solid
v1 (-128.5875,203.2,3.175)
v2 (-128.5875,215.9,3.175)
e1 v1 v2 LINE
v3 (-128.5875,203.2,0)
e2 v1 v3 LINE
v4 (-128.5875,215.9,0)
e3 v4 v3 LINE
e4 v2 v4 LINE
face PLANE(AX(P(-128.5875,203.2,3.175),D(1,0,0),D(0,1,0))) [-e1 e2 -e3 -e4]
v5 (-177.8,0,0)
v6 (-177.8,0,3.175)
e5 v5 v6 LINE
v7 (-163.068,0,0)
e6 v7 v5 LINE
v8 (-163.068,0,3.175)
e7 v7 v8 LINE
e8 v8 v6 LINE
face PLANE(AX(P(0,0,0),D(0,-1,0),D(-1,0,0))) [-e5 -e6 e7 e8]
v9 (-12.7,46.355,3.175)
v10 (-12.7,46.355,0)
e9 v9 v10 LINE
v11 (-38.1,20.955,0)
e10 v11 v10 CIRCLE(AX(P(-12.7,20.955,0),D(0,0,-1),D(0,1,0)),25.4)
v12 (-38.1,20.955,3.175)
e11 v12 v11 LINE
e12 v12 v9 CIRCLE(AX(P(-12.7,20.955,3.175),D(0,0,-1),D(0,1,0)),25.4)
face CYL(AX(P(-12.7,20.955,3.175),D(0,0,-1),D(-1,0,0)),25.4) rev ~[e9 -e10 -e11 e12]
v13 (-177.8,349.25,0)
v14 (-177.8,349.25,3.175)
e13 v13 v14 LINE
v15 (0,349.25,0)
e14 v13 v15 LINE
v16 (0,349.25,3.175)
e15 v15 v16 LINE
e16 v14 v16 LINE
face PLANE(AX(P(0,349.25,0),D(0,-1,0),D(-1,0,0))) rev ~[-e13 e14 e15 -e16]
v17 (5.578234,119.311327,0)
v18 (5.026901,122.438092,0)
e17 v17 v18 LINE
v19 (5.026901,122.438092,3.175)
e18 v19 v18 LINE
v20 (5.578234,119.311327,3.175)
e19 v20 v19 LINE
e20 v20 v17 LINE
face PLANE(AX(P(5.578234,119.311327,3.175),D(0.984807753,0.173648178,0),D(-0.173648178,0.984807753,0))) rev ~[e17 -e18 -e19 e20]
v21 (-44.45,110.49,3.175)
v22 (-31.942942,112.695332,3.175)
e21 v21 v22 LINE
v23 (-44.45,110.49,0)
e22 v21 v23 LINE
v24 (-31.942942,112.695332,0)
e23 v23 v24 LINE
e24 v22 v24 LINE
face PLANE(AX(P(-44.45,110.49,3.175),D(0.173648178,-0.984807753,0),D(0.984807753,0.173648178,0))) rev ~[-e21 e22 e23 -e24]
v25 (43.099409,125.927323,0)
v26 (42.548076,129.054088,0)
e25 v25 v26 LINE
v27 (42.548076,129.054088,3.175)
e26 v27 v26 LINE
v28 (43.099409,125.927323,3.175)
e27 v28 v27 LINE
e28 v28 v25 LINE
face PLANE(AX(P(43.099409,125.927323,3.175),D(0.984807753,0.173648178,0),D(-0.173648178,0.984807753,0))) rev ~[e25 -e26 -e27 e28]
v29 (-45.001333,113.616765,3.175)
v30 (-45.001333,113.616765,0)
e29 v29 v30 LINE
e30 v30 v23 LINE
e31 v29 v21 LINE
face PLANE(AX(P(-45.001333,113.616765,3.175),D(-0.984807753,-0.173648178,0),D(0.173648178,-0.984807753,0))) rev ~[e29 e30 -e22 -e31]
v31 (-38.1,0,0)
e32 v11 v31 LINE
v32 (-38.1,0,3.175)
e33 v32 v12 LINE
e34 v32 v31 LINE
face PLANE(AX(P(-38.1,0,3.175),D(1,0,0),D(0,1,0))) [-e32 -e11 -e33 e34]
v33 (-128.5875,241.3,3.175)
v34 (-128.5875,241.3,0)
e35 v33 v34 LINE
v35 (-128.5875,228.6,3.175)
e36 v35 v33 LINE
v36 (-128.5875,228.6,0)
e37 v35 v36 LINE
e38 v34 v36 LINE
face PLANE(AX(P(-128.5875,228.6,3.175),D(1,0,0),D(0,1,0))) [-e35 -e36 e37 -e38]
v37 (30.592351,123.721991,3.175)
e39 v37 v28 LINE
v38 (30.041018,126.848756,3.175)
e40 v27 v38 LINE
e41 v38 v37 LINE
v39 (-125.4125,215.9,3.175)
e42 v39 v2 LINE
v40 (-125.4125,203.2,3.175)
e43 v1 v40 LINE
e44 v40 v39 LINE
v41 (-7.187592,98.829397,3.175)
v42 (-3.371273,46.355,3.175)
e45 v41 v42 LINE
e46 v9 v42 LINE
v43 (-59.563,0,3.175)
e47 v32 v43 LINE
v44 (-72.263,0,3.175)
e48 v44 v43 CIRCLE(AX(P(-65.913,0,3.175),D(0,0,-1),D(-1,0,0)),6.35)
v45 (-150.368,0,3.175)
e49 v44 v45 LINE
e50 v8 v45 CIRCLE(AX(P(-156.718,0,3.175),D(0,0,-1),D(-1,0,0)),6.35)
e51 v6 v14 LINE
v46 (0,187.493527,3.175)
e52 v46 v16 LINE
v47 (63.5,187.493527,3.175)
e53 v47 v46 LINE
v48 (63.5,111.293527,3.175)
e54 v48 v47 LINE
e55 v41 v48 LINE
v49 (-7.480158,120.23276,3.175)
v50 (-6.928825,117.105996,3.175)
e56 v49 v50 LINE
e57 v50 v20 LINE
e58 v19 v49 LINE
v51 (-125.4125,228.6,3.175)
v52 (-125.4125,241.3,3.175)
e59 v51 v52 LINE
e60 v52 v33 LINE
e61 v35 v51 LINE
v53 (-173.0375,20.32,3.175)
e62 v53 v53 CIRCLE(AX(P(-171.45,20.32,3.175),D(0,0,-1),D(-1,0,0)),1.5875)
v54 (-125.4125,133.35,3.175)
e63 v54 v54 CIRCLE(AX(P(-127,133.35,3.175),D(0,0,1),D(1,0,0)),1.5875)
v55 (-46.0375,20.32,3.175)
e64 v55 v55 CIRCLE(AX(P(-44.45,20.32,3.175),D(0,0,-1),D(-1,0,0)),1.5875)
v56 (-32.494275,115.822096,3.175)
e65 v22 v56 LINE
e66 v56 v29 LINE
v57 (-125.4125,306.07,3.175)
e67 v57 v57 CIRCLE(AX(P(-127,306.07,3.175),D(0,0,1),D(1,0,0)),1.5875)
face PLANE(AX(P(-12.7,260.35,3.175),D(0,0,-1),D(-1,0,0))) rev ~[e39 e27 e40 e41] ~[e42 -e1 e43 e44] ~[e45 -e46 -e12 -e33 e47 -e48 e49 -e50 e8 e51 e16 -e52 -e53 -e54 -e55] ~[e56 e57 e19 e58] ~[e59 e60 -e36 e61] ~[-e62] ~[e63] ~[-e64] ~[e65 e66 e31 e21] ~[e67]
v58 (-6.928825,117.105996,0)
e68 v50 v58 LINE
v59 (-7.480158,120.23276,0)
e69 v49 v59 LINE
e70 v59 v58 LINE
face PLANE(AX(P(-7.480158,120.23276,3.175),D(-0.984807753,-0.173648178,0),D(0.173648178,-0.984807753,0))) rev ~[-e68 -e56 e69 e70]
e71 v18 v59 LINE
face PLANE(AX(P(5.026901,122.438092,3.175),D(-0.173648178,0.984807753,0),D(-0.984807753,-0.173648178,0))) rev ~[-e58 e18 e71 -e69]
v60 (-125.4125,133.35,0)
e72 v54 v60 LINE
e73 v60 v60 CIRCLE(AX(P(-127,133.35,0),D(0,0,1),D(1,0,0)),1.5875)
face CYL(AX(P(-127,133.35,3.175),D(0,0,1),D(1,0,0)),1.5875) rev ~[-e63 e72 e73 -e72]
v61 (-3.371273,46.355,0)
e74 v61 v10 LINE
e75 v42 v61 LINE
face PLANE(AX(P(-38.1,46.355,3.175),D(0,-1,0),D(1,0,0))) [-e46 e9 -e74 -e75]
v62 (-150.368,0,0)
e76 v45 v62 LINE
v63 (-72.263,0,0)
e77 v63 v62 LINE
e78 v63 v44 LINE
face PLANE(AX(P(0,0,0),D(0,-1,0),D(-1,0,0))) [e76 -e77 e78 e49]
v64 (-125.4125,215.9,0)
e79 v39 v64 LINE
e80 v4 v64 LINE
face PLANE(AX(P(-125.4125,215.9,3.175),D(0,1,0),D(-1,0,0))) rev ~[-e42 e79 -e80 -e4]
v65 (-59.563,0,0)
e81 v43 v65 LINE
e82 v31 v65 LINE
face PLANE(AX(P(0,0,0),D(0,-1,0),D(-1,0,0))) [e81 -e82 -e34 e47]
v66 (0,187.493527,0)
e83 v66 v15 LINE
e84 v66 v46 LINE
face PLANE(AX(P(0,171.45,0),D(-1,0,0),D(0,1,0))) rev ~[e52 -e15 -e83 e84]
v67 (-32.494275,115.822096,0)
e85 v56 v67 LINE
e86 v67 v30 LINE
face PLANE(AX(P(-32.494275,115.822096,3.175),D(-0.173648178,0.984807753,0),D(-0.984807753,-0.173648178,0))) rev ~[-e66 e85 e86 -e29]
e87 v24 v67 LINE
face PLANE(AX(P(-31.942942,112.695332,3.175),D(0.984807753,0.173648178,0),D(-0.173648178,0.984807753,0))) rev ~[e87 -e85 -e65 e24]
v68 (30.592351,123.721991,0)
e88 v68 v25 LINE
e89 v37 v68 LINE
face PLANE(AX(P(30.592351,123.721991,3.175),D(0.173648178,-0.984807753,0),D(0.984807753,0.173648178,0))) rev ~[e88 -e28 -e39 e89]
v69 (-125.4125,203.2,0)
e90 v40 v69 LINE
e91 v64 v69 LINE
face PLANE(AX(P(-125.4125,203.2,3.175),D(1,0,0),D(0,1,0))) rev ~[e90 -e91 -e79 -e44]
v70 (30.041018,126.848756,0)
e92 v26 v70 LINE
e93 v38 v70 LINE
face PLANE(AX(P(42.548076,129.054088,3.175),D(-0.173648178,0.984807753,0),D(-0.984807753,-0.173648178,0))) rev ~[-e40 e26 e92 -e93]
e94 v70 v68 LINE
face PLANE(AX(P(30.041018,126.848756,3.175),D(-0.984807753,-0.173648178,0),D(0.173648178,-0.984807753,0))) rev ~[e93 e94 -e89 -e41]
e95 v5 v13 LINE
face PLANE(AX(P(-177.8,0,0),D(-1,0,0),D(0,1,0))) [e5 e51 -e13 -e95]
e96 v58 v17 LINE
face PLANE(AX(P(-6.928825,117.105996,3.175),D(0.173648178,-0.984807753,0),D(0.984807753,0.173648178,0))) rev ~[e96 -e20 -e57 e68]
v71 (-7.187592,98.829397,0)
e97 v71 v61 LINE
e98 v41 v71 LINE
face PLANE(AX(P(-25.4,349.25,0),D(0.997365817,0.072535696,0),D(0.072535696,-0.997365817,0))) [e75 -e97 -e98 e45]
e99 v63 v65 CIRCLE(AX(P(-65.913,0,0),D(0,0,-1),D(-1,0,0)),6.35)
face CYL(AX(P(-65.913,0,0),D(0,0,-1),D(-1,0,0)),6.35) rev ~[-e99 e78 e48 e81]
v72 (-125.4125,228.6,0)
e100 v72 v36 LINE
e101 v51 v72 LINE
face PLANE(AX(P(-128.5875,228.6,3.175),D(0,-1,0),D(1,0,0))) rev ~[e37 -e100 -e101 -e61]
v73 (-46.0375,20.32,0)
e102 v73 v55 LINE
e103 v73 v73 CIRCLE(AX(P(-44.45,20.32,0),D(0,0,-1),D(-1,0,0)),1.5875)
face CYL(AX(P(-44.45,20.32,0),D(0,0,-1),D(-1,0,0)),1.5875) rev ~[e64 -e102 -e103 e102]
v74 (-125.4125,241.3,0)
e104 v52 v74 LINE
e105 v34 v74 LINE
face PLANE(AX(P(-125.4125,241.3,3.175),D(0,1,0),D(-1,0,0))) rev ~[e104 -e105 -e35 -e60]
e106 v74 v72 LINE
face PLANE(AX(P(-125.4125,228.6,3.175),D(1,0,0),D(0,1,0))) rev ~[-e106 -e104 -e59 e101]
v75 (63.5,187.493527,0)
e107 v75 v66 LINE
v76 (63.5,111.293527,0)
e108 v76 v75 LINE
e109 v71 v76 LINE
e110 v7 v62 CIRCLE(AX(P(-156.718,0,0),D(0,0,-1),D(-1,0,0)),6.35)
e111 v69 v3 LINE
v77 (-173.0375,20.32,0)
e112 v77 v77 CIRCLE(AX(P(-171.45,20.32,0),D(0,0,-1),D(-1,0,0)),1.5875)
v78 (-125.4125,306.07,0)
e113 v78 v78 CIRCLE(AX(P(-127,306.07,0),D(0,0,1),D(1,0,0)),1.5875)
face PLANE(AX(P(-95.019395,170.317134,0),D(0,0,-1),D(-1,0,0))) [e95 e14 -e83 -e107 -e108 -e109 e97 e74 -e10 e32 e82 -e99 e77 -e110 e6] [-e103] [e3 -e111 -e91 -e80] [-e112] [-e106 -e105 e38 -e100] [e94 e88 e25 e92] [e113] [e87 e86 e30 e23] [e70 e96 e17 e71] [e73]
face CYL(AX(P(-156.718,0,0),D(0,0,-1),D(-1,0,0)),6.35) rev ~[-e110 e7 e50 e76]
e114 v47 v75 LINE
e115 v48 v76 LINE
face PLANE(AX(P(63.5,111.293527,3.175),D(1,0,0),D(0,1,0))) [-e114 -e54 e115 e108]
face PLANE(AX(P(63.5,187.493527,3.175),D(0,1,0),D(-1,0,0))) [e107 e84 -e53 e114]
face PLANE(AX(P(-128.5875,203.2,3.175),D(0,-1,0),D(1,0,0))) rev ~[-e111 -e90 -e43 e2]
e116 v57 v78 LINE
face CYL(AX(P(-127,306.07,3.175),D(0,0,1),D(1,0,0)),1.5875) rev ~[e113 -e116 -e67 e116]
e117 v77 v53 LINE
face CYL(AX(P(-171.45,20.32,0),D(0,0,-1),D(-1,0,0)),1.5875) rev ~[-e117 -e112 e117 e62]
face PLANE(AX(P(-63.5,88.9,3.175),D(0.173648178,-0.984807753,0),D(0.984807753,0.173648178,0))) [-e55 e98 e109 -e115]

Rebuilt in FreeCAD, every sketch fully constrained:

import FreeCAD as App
import Part
import Sketcher
from FreeCAD import Vector
Q = App.Units.Quantity


def edges_at(feature, points):
    """Names of the edges that pass closest to the given points."""
    edges = feature.Shape.Edges
    near = lambda p: min(range(len(edges)), key=lambda i: edges[i].distToShape(Part.Vertex(*p))[0])
    return sorted({f"Edge{near(p) + 1}" for p in points})


def add_polygon(sketch, points):
    """Adds a closed chain of lines whose ends are joined by coincident constraints."""
    first, n = sketch.GeometryCount, len(points)
    for a, b in zip(points, points[1:] + points[:1]):
        sketch.addGeometry(Part.LineSegment(App.Vector(*a, 0), App.Vector(*b, 0)), False)
    for i in range(n):
        sketch.addConstraint(Sketcher.Constraint("Coincident", first + i, 2, first + (i + 1) % n, 1))

doc = App.newDocument("Part")
params = doc.addObject("Spreadsheet::Sheet", "Params")
for row, (alias, value) in enumerate([
    ("sketch1_width", "7 in"),
    ("sketch1_width2", "6 in"),
    ("sketch1_height", "13.75 in"),
    ("pad1_length", "0.125 in"),
    ("sketch2_diameter", "0.125 in"),
    ("pocket1_length", "0.125 in"),
    ("sketch3_width", "5 in"),
    ("sketch3_height", "3 in"),
    ("pad2_length", "0.125 in"),
    ("sketch4_length", "0.5 in"),
    ("sketch4_length2", "0.125 in"),
    ("pocket2_length", "0.125 in"),
    ("sketch5_height", "0.5 in"),
    ("sketch5_width", "0.125 in"),
    ("pocket3_length", "0.4 in"),
    ("linearpattern_pitch", "1 in"),
    ("sketch6_width", "1.5 in"),
    ("sketch6_height", "1.825 in"),
    ("pocket4_length", "0.5 in"),
    ("sketch7_diameter", "0.125 in"),
    ("pocket5_length", "0.3 in"),
    ("sketch8_diameter", "0.5 in"),
    ("pocket6_length", "0.5 in"),
    ("fillet_radius", "1 in"),
    ("sketch9_width", "1 in"),
    ("sketch9_height", "7 in"),
    ("pad3_length", "0.125 in"),
    ("linearpattern2_pitch", "3 in"),
], start=1):
    params.set(f"A{row}", alias)
    params.set(f"B{row}", "=" + value)
    params.setAlias(f"B{row}", alias)

body = doc.addObject("PartDesign::Body", "Body")

sketch1 = body.newObject("Sketcher::SketchObject", "Sketch")
sketch1.AttachmentSupport = (doc.getObject("XY_Plane"), [""])
sketch1.MapMode = "FlatFace"
add_polygon(sketch1, [(-178, 0), (0, 0), (-25, 349), (-178, 349)])
sketch1.addConstraint([
    Sketcher.Constraint("Horizontal", 0),
    Sketcher.Constraint("Horizontal", 2),
    Sketcher.Constraint("Vertical", 3),
    Sketcher.Constraint("Coincident", 0, 2, -1, 1),
    Sketcher.Constraint("DistanceX", 0, 1, 0, 2, Q("7 in")),
    Sketcher.Constraint("DistanceX", 2, 2, 2, 1, Q("6 in")),
    Sketcher.Constraint("DistanceY", 3, 2, 3, 1, Q("13.75 in")),
])
sketch1.setExpression("Constraints[8]", "Params.sketch1_width")
sketch1.setExpression("Constraints[9]", "Params.sketch1_width2")
sketch1.setExpression("Constraints[10]", "Params.sketch1_height")
pad1 = body.newObject("PartDesign::Pad", "Pad")
pad1.Profile = sketch1
pad1.setExpression("Length", "Params.pad1_length")

sketch2 = body.newObject("Sketcher::SketchObject", "Sketch001")
sketch2.AttachmentSupport = (doc.getObject("XY_Plane"), [""])
sketch2.MapMode = "FlatFace"
sketch2.AttachmentOffset = App.Placement(Vector(0, 0, 0.125 * 25.4), App.Rotation())
sketch2.addGeometry([
    Part.Circle(Vector(-127, 133.3, 0), Vector(0, 0, 1), 1.6),
    Part.Circle(Vector(-127, 306.1, 0), Vector(0, 0, 1), 1.6),
], False)
sketch2.addConstraint([
    Sketcher.Constraint("Equal", 0, 1),
    Sketcher.Constraint("Vertical", 0, 3, 1, 3),
    Sketcher.Constraint("Diameter", 0, Q("0.125 in")),
    Sketcher.Constraint("DistanceX", 0, 3, -1, 1, Q("5 in")),
    Sketcher.Constraint("DistanceY", 0, 3, 1, 3, Q("6.8 in")),
    Sketcher.Constraint("DistanceY", -1, 1, 0, 3, Q("5.25 in")),
])
sketch2.setExpression("Constraints[2]", "Params.sketch2_diameter")
pocket1 = body.newObject("PartDesign::Pocket", "Pocket")
pocket1.Profile = sketch2
pocket1.setExpression("Length", "Params.pocket1_length")

sketch3 = body.newObject("Sketcher::SketchObject", "Sketch002")
sketch3.AttachmentSupport = (doc.getObject("XY_Plane"), [""])
sketch3.MapMode = "FlatFace"
sketch3.AttachmentOffset = App.Placement(Vector(0, 0, 0.125 * 25.4), App.Rotation())
add_polygon(sketch3, [(-64, 89), (64, 111), (64, 187), (-64, 187)])
sketch3.addConstraint([
    Sketcher.Constraint("Vertical", 1),
    Sketcher.Constraint("Horizontal", 2),
    Sketcher.Constraint("Vertical", 3),
    Sketcher.Constraint("DistanceX", 2, 2, 2, 1, Q("5 in")),
    Sketcher.Constraint("DistanceY", 1, 1, 1, 2, Q("3 in")),
    Sketcher.Constraint("Angle", 0, Q("10 deg")),
    Sketcher.Constraint("DistanceX", -1, 1, 0, 2, Q("2.5 in")),
    Sketcher.Constraint("DistanceY", -1, 1, 3, 2, Q("3.5 in")),
])
sketch3.setExpression("Constraints[7]", "Params.sketch3_width")
sketch3.setExpression("Constraints[8]", "Params.sketch3_height")
pad2 = body.newObject("PartDesign::Pad", "Pad001")
pad2.Profile = sketch3
pad2.setExpression("Length", "Params.pad2_length")
pad2.Reversed = True

sketch4 = body.newObject("Sketcher::SketchObject", "Sketch003")
sketch4.AttachmentSupport = (doc.getObject("XY_Plane"), [""])
sketch4.MapMode = "FlatFace"
sketch4.AttachmentOffset = App.Placement(Vector(0, 0, 0.125 * 25.4), App.Rotation())
add_polygon(sketch4, [(-44.5, 110.5), (-31.9, 112.7), (-32.5, 115.8), (-45, 113.6)])
add_polygon(sketch4, [(-6.9, 117.1), (5.6, 119.3), (5, 122.4), (-7.5, 120.2)])
sketch4.addConstraint([
    Sketcher.Constraint("Perpendicular", 0, 1),
    Sketcher.Constraint("Perpendicular", 1, 2),
    Sketcher.Constraint("Perpendicular", 2, 3),
    Sketcher.Constraint("Perpendicular", 3, 4),
    Sketcher.Constraint("Perpendicular", 4, 5),
    Sketcher.Constraint("Perpendicular", 5, 6),
    Sketcher.Constraint("Perpendicular", 6, 7),
    Sketcher.Constraint("Equal", 2, 4),
    Sketcher.Constraint("Equal", 3, 5),
    Sketcher.Constraint("Angle", 0, Q("10 deg")),
    Sketcher.Constraint("Distance", 0, Q("0.5 in")),
    Sketcher.Constraint("DistanceX", 3, 2, -1, 1, Q("1.75 in")),
    Sketcher.Constraint("DistanceY", -1, 1, 3, 2, Q("4.35 in")),
    Sketcher.Constraint("Distance", 1, Q("0.125 in")),
    Sketcher.Constraint("DistanceX", -1, 1, 5, 2, Q("5.026901 mm")),
    Sketcher.Constraint("DistanceY", 1, 2, 7, 2, Q("1.283899 mm")),
])
sketch4.setExpression("Constraints[18]", "Params.sketch4_length")
sketch4.setExpression("Constraints[21]", "Params.sketch4_length2")
pocket2 = body.newObject("PartDesign::Pocket", "Pocket001")
pocket2.Profile = sketch4
pocket2.setExpression("Length", "Params.pocket2_length")

sketch5 = body.newObject("Sketcher::SketchObject", "Sketch004")
sketch5.AttachmentSupport = (doc.getObject("XY_Plane"), [""])
sketch5.MapMode = "FlatFace"
sketch5.AttachmentOffset = App.Placement(Vector(0, 0, 0.125 * 25.4), App.Rotation())
add_polygon(sketch5, [(-125.4, 203.2), (-125.4, 215.9), (-128.6, 215.9), (-128.6, 203.2)])
sketch5.addConstraint([
    Sketcher.Constraint("Vertical", 0),
    Sketcher.Constraint("Horizontal", 1),
    Sketcher.Constraint("Vertical", 2),
    Sketcher.Constraint("Horizontal", 3),
    Sketcher.Constraint("DistanceY", 0, 1, 0, 2, Q("0.5 in")),
    Sketcher.Constraint("DistanceY", -1, 1, 2, 2, Q("8 in")),
    Sketcher.Constraint("DistanceX", 1, 2, 1, 1, Q("0.125 in")),
    Sketcher.Constraint("DistanceX", 0, 2, -1, 1, Q("4.9375 in")),
])
sketch5.setExpression("Constraints[8]", "Params.sketch5_height")
sketch5.setExpression("Constraints[10]", "Params.sketch5_width")
pocket3 = body.newObject("PartDesign::Pocket", "Pocket002")
pocket3.Profile = sketch5
pocket3.setExpression("Length", "Params.pocket3_length")
doc.recompute()

linearpattern = body.newObject("PartDesign::LinearPattern", "LinearPattern")
linearpattern.Originals = [pocket3]
linearpattern.Direction = (doc.getObject("Y_Axis"), [""])
linearpattern.Mode = "offset"
linearpattern.setExpression("Offset", "Params.linearpattern_pitch")
linearpattern.Occurrences = 2
body.Tip = linearpattern

sketch6 = body.newObject("Sketcher::SketchObject", "Sketch005")
sketch6.AttachmentSupport = (doc.getObject("XY_Plane"), [""])
sketch6.MapMode = "FlatFace"
sketch6.AttachmentOffset = App.Placement(Vector(0, 0, 0.125 * 25.4), App.Rotation())
add_polygon(sketch6, [(-38, 46), (-38, 0), (0, 0), (0, 46)])
sketch6.addConstraint([
    Sketcher.Constraint("Vertical", 0),
    Sketcher.Constraint("Horizontal", 1),
    Sketcher.Constraint("Vertical", 2),
    Sketcher.Constraint("Horizontal", 3),
    Sketcher.Constraint("Coincident", 1, 2, -1, 1),
    Sketcher.Constraint("DistanceX", 1, 1, 1, 2, Q("1.5 in")),
    Sketcher.Constraint("DistanceY", 0, 2, 0, 1, Q("1.825 in")),
])
sketch6.setExpression("Constraints[9]", "Params.sketch6_width")
sketch6.setExpression("Constraints[10]", "Params.sketch6_height")
pocket4 = body.newObject("PartDesign::Pocket", "Pocket003")
pocket4.Profile = sketch6
pocket4.setExpression("Length", "Params.pocket4_length")

sketch7 = body.newObject("Sketcher::SketchObject", "Sketch006")
sketch7.AttachmentSupport = (doc.getObject("XY_Plane"), [""])
sketch7.MapMode = "FlatFace"
sketch7.addGeometry([
    Part.Circle(Vector(-171.4, 20.3, 0), Vector(0, 0, 1), 1.6),
    Part.Circle(Vector(-44.5, 20.3, 0), Vector(0, 0, 1), 1.6),
], False)
sketch7.addConstraint([
    Sketcher.Constraint("Equal", 0, 1),
    Sketcher.Constraint("Horizontal", 0, 3, 1, 3),
    Sketcher.Constraint("Diameter", 0, Q("0.125 in")),
    Sketcher.Constraint("DistanceX", 0, 3, 1, 3, Q("5 in")),
    Sketcher.Constraint("DistanceY", -1, 1, 0, 3, Q("0.8 in")),
    Sketcher.Constraint("DistanceX", 0, 3, -1, 1, Q("6.75 in")),
])
sketch7.setExpression("Constraints[2]", "Params.sketch7_diameter")
pocket5 = body.newObject("PartDesign::Pocket", "Pocket004")
pocket5.Profile = sketch7
pocket5.setExpression("Length", "Params.pocket5_length")
pocket5.Reversed = True

sketch8 = body.newObject("Sketcher::SketchObject", "Sketch007")
sketch8.AttachmentSupport = (doc.getObject("XY_Plane"), [""])
sketch8.MapMode = "FlatFace"
sketch8.addGeometry([
    Part.Circle(Vector(-157, 0, 0), Vector(0, 0, 1), 6),
    Part.Circle(Vector(-66, 0, 0), Vector(0, 0, 1), 6),
], False)
sketch8.addConstraint([
    Sketcher.Constraint("Equal", 0, 1),
    Sketcher.Constraint("PointOnObject", 0, 3, -1),
    Sketcher.Constraint("PointOnObject", 1, 3, -1),
    Sketcher.Constraint("Diameter", 0, Q("0.5 in")),
    Sketcher.Constraint("DistanceX", 0, 3, -1, 1, Q("6.17 in")),
    Sketcher.Constraint("DistanceX", 1, 3, -1, 1, Q("2.595 in")),
])
sketch8.setExpression("Constraints[3]", "Params.sketch8_diameter")
pocket6 = body.newObject("PartDesign::Pocket", "Pocket005")
pocket6.Profile = sketch8
pocket6.setExpression("Length", "Params.pocket6_length")
pocket6.Reversed = True
doc.recompute()

fillet = body.newObject("PartDesign::Fillet", "Fillet")
fillet.Base = (pocket6, edges_at(pocket6, [(-38.1, 46.355, 1.587)]))
fillet.setExpression("Radius", "Params.fillet_radius")

sketch9 = body.newObject("Sketcher::SketchObject", "Sketch008")
sketch9.AttachmentSupport = (doc.getObject("XY_Plane"), [""])
sketch9.MapMode = "FlatFace"
add_polygon(sketch9, [(0, 349), (0, 171), (-25, 171), (-25, 349)])
sketch9.addConstraint([
    Sketcher.Constraint("Vertical", 0),
    Sketcher.Constraint("Horizontal", 1),
    Sketcher.Constraint("Vertical", 2),
    Sketcher.Constraint("Horizontal", 3),
    Sketcher.Constraint("PointOnObject", 0, 2, -2),
    Sketcher.Constraint("DistanceX", 1, 2, 1, 1, Q("1 in")),
    Sketcher.Constraint("DistanceY", 0, 2, 0, 1, Q("7 in")),
    Sketcher.Constraint("DistanceY", -1, 1, 0, 2, Q("6.75 in")),
])
sketch9.setExpression("Constraints[9]", "Params.sketch9_width")
sketch9.setExpression("Constraints[10]", "Params.sketch9_height")
pad3 = body.newObject("PartDesign::Pad", "Pad002")
pad3.Profile = sketch9
pad3.setExpression("Length", "Params.pad3_length")
doc.recompute()

datumline = body.newObject("PartDesign::Line", "DatumLine")
datumline.Placement = App.Placement(Vector(0, 0, 0), App.Rotation(Vector(0, 0, 1), Vector(0.984807753, 0.173648178, 0)))
linearpattern2 = body.newObject("PartDesign::LinearPattern", "LinearPattern001")
linearpattern2.Originals = [pocket2]
linearpattern2.Direction = (datumline, [""])
linearpattern2.Mode = "offset"
linearpattern2.setExpression("Offset", "Params.linearpattern2_pitch")
linearpattern2.Occurrences = 2
body.Tip = linearpattern2

doc.recompute()
